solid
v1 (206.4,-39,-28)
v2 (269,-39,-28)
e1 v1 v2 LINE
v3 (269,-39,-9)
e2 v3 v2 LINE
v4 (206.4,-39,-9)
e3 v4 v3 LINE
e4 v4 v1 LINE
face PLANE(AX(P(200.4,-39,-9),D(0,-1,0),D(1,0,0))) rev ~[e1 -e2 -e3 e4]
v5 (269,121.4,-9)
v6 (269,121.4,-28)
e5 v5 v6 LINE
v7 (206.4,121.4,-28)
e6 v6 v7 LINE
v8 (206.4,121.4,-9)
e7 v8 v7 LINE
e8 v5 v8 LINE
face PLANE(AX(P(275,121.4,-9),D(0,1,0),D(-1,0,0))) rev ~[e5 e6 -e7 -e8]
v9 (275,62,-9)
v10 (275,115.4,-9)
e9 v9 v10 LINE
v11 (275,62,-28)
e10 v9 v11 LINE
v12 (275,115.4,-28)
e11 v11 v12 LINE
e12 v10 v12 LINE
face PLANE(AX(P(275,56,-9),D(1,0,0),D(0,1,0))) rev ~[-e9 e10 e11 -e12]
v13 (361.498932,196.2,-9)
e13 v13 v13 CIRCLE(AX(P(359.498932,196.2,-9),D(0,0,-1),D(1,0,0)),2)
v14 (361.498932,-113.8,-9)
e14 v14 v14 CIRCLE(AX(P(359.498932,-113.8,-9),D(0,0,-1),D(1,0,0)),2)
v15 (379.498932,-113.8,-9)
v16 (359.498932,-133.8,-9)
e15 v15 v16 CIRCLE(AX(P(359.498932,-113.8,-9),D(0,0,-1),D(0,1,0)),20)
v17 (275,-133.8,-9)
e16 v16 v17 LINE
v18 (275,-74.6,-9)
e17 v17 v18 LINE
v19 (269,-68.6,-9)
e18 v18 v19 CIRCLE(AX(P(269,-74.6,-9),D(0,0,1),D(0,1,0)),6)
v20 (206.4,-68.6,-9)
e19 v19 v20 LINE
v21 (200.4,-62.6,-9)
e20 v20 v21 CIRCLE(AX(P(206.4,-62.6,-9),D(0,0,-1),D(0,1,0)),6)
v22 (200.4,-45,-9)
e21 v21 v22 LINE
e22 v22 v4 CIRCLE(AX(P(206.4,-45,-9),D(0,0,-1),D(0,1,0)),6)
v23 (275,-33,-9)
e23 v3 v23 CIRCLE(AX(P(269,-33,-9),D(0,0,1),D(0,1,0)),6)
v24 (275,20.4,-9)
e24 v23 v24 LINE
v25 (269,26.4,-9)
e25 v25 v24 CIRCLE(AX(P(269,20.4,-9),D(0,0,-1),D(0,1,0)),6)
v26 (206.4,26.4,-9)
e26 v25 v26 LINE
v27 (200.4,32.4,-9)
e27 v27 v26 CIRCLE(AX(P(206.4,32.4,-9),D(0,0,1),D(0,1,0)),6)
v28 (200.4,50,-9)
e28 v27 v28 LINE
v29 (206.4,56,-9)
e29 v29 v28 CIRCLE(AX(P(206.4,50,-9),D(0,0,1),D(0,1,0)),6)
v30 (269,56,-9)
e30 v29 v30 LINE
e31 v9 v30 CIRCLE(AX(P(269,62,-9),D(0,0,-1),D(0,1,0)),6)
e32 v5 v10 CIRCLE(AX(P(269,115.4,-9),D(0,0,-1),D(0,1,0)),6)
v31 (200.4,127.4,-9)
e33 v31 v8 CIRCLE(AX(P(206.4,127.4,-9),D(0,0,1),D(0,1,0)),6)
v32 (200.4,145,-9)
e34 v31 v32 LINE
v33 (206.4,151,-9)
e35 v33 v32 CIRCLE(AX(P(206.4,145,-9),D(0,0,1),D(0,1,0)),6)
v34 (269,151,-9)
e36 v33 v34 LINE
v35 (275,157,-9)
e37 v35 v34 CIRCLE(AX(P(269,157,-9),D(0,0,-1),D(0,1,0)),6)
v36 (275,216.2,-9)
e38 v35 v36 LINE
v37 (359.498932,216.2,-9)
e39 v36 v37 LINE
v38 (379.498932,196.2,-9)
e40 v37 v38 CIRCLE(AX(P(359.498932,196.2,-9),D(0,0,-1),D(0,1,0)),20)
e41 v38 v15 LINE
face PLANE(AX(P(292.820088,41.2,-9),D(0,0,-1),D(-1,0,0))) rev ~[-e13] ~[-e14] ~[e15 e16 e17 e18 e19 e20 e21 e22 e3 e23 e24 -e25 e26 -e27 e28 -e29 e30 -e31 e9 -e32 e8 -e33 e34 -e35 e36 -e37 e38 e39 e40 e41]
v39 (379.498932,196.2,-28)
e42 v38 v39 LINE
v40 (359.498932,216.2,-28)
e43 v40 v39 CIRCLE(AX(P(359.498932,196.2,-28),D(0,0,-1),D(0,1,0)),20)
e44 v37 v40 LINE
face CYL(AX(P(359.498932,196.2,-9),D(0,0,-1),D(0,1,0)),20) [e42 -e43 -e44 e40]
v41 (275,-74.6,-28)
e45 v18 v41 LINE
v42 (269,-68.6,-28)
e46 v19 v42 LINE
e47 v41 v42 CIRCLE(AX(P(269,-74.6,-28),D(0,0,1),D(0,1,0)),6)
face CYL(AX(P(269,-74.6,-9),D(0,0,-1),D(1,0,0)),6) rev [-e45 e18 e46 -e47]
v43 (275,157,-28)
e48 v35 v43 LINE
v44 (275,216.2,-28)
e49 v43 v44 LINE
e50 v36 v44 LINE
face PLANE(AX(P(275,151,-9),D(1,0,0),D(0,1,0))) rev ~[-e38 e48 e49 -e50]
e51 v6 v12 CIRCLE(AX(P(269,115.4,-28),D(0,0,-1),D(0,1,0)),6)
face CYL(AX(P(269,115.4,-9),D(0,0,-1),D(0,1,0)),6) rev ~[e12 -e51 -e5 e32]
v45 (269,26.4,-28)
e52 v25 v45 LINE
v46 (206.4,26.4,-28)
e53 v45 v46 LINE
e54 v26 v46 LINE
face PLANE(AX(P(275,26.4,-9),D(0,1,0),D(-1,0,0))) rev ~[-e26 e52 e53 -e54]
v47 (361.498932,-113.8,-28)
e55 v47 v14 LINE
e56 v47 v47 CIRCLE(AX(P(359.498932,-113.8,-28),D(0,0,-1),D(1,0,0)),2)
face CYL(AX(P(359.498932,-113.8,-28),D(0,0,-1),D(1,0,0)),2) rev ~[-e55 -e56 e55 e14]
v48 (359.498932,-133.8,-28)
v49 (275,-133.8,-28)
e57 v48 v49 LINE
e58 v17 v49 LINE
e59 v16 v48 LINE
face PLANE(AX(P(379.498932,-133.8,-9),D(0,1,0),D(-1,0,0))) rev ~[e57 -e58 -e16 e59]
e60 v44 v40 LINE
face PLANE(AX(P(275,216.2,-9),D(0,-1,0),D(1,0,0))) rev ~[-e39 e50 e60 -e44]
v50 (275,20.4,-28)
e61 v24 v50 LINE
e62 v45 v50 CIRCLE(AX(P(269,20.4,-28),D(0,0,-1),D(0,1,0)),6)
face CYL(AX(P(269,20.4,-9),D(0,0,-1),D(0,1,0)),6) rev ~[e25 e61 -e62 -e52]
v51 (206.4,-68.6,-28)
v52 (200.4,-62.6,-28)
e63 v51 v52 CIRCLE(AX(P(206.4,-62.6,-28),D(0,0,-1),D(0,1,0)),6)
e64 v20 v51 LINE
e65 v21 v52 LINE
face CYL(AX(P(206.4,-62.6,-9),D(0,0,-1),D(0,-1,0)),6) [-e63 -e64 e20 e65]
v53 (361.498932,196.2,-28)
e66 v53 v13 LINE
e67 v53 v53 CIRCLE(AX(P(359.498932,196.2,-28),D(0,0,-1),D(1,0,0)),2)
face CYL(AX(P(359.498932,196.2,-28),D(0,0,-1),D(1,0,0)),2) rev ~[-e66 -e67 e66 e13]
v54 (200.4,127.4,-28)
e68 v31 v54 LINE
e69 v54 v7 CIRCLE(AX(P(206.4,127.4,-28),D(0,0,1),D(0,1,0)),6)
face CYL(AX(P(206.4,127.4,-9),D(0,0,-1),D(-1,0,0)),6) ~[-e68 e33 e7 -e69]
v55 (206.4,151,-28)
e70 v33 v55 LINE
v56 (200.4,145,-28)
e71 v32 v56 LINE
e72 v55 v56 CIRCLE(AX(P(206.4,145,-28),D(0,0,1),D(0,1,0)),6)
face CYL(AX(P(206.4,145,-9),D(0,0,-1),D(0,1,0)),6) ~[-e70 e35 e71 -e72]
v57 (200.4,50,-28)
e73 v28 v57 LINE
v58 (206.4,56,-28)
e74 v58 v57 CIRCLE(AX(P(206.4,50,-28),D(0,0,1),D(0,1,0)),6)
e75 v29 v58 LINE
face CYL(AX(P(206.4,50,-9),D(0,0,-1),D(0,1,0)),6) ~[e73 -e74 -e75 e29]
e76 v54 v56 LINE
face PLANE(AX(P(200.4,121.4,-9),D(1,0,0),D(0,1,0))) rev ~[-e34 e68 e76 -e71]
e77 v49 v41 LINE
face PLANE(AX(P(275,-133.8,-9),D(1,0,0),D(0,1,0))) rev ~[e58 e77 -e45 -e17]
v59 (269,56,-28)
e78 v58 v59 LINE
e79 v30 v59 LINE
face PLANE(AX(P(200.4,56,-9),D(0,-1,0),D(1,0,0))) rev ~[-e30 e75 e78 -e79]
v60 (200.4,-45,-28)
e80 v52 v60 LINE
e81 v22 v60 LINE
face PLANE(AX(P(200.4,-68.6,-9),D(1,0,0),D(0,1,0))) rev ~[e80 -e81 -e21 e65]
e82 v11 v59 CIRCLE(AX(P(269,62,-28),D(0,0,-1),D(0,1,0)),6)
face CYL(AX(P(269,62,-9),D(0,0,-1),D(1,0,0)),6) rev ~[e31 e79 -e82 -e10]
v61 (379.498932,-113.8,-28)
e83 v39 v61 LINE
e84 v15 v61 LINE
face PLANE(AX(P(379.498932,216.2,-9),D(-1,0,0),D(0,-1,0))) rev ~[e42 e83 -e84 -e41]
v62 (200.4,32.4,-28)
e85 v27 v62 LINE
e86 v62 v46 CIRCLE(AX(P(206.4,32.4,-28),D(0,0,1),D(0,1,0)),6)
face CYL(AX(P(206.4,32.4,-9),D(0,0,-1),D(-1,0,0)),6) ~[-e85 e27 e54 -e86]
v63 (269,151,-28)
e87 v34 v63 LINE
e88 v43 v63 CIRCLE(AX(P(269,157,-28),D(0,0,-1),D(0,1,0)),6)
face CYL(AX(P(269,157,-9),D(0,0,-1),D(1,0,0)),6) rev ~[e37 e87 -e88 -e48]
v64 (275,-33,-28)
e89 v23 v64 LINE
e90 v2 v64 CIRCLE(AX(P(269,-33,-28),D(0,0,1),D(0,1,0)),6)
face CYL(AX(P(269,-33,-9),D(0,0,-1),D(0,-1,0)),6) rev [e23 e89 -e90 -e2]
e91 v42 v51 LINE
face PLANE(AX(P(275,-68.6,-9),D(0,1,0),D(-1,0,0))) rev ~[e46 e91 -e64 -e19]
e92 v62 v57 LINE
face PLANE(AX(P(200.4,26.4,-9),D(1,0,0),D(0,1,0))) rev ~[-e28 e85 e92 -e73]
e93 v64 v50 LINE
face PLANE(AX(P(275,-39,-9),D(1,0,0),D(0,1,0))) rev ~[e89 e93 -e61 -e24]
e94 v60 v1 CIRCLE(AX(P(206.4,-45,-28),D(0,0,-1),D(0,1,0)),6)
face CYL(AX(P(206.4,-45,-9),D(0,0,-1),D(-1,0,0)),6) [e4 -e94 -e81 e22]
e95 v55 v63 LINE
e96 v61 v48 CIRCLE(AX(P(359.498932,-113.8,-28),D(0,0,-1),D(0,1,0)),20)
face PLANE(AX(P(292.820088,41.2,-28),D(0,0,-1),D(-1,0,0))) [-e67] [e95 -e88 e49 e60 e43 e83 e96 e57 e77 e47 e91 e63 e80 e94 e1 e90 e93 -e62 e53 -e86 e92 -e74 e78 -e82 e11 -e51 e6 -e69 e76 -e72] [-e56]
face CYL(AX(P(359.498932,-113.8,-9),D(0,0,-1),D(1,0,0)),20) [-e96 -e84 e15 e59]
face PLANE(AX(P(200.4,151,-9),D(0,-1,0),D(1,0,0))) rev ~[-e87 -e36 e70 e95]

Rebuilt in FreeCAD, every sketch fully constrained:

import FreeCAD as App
import Part
import Sketcher
from FreeCAD import Vector


def edges_at(feature, points):
    """Names of the edges that pass closest to the given points."""
    edges = feature.Shape.Edges
    near = lambda p: min(range(len(edges)), key=lambda i: edges[i].distToShape(Part.Vertex(*p))[0])
    return sorted({f"Edge{near(p) + 1}" for p in points})

doc = App.newDocument("Part")
body = doc.addObject("PartDesign::Body", "Body")

sketch1 = doc.addObject("Sketcher::SketchObject", "Sketch")
body.addObject(sketch1)
sketch1.AttachmentSupport = (doc.XY_Plane, [""])
sketch1.MapMode = "FlatFace"
sketch1.addGeometry([
    Part.LineSegment(Vector(379, 216, 0), Vector(275, 216, 0)),
    Part.LineSegment(Vector(275, 216, 0), Vector(275, 151, 0)),
    Part.LineSegment(Vector(275, 151, 0), Vector(200, 151, 0)),
    Part.LineSegment(Vector(200, 151, 0), Vector(200, 121, 0)),
    Part.LineSegment(Vector(200, 121, 0), Vector(275, 121, 0)),
    Part.LineSegment(Vector(275, 121, 0), Vector(275, 56, 0)),
    Part.LineSegment(Vector(275, 56, 0), Vector(200, 56, 0)),
    Part.LineSegment(Vector(200, 56, 0), Vector(200, 26, 0)),
    Part.LineSegment(Vector(200, 26, 0), Vector(275, 26, 0)),
    Part.LineSegment(Vector(275, 26, 0), Vector(275, -39, 0)),
    Part.LineSegment(Vector(275, -39, 0), Vector(200, -39, 0)),
    Part.LineSegment(Vector(200, -39, 0), Vector(200, -69, 0)),
    Part.LineSegment(Vector(200, -69, 0), Vector(275, -69, 0)),
    Part.LineSegment(Vector(275, -69, 0), Vector(275, -134, 0)),
    Part.LineSegment(Vector(275, -134, 0), Vector(379, -134, 0)),
    Part.LineSegment(Vector(379, -134, 0), Vector(379, 216, 0)),
], False)
sketch1.addConstraint([
    Sketcher.Constraint("Coincident", 0, 2, 1, 1),
    Sketcher.Constraint("Coincident", 1, 2, 2, 1),
    Sketcher.Constraint("Coincident", 2, 2, 3, 1),
    Sketcher.Constraint("Coincident", 3, 2, 4, 1),
    Sketcher.Constraint("Coincident", 4, 2, 5, 1),
    Sketcher.Constraint("Coincident", 5, 2, 6, 1),
    Sketcher.Constraint("Coincident", 6, 2, 7, 1),
    Sketcher.Constraint("Coincident", 7, 2, 8, 1),
    Sketcher.Constraint("Coincident", 8, 2, 9, 1),
    Sketcher.Constraint("Coincident", 9, 2, 10, 1),
    Sketcher.Constraint("Coincident", 10, 2, 11, 1),
    Sketcher.Constraint("Coincident", 11, 2, 12, 1),
    Sketcher.Constraint("Coincident", 12, 2, 13, 1),
    Sketcher.Constraint("Coincident", 13, 2, 14, 1),
    Sketcher.Constraint("Coincident", 14, 2, 15, 1),
    Sketcher.Constraint("Coincident", 15, 2, 0, 1),
    Sketcher.Constraint("Horizontal", 0),
    Sketcher.Constraint("Vertical", 1),
    Sketcher.Constraint("Horizontal", 2),
    Sketcher.Constraint("Vertical", 3),
    Sketcher.Constraint("Horizontal", 4),
    Sketcher.Constraint("Vertical", 5),
    Sketcher.Constraint("Horizontal", 6),
    Sketcher.Constraint("Vertical", 7),
    Sketcher.Constraint("Horizontal", 8),
    Sketcher.Constraint("Vertical", 9),
    Sketcher.Constraint("Horizontal", 10),
    Sketcher.Constraint("Vertical", 11),
    Sketcher.Constraint("Horizontal", 12),
    Sketcher.Constraint("Vertical", 13),
    Sketcher.Constraint("Horizontal", 14),
    Sketcher.Constraint("Vertical", 15),
    Sketcher.Constraint("Vertical", 1, 2, 4, 2),
    Sketcher.Constraint("Vertical", 3, 2, 6, 2),
    Sketcher.Constraint("Vertical", 5, 2, 8, 2),
    Sketcher.Constraint("Vertical", 7, 2, 10, 2),
    Sketcher.Constraint("Vertical", 9, 2, 12, 2),
    Sketcher.Constraint("Equal", 3, 7),
    Sketcher.Constraint("Equal", 5, 9),
    Sketcher.Constraint("Equal", 7, 11),
    Sketcher.Constraint("Equal", 1, 13),
    Sketcher.Constraint("DistanceY", 15, 1, 15, 2, 350.0),
    Sketcher.Constraint("DistanceX", 2, 2, 2, 1, 74.6),
    Sketcher.Constraint("DistanceY", 1, 2, 1, 1, 65.2),
    Sketcher.Constraint("DistanceY", 3, 2, 3, 1, 29.6),
    Sketcher.Constraint("DistanceX", -1, 1, 0, 2, 275.0),
    Sketcher.Constraint("DistanceY", -1, 1, 1, 2, 151.0),
    Sketcher.Constraint("DistanceX", 0, 2, 0, 1, 104.498932),
])
pad1 = doc.addObject("PartDesign::Pad", "Pad")
body.addObject(pad1)
pad1.Profile = sketch1
pad1.Length = 19
pad1.Reversed = True
doc.recompute()

fillet = doc.addObject("PartDesign::Fillet", "Fillet")
body.addObject(fillet)
fillet.Base = (pad1, edges_at(pad1, [(379.499, 216.2, -9.5), (379.499, -133.8, -9.5)]))
fillet.Radius = 20
doc.recompute()

fillet2 = doc.addObject("PartDesign::Fillet", "Fillet001")
body.addObject(fillet2)
fillet2.Base = (fillet, edges_at(fillet, [
    (200.4, 151, -9.5),
    (200.4, 121.4, -9.5),
    (200.4, 26.4, -9.5),
    (200.4, 56, -9.5),
    (200.4, -39, -9.5),
    (200.4, -68.6, -9.5),
    (275, 151, -9.5),
    (275, 121.4, -9.5),
    (275, 26.4, -9.5),
    (275, -68.6, -9.5),
    (275, -39, -9.5),
    (275, 56, -9.5),
]))
fillet2.Radius = 6

sketch2 = doc.addObject("Sketcher::SketchObject", "Sketch001")
body.addObject(sketch2)
sketch2.AttachmentSupport = (doc.XY_Plane, [""])
sketch2.MapMode = "FlatFace"
sketch2.AttachmentOffset = App.Placement(Vector(0, 0, -19), App.Rotation())
sketch2.addGeometry([
    Part.Circle(Vector(359.5, -113.8, 0), Vector(0, 0, 1), 2),
    Part.Circle(Vector(359.5, 196.2, 0), Vector(0, 0, 1), 2),
], False)
sketch2.addConstraint([
    Sketcher.Constraint("Equal", 0, 1),
    Sketcher.Constraint("Vertical", 0, 3, 1, 3),
    Sketcher.Constraint("Diameter", 0, 4.0),
    Sketcher.Constraint("DistanceY", 0, 3, 1, 3, 310.0),
    Sketcher.Constraint("DistanceY", 0, 3, -1, 1, 113.8),
    Sketcher.Constraint("DistanceX", -1, 1, 0, 3, 359.498932),
])
pocket1 = doc.addObject("PartDesign::Pocket", "Pocket")
body.addObject(pocket1)
pocket1.Profile = sketch2
pocket1.Type = "ThroughAll"
pocket1.Reversed = True
body2 = doc.addObject("PartDesign::Body", "Body001")
doc.recompute()

body.Placement = App.Placement(Vector(0, 0, -9), App.Rotation(Vector(0, 0, 1), 0))
boolean = doc.addObject("PartDesign::Boolean", "Boolean")
body2.addObject(boolean)
boolean.Type = "Fuse"
boolean.addObjects([body])

doc.recompute()
